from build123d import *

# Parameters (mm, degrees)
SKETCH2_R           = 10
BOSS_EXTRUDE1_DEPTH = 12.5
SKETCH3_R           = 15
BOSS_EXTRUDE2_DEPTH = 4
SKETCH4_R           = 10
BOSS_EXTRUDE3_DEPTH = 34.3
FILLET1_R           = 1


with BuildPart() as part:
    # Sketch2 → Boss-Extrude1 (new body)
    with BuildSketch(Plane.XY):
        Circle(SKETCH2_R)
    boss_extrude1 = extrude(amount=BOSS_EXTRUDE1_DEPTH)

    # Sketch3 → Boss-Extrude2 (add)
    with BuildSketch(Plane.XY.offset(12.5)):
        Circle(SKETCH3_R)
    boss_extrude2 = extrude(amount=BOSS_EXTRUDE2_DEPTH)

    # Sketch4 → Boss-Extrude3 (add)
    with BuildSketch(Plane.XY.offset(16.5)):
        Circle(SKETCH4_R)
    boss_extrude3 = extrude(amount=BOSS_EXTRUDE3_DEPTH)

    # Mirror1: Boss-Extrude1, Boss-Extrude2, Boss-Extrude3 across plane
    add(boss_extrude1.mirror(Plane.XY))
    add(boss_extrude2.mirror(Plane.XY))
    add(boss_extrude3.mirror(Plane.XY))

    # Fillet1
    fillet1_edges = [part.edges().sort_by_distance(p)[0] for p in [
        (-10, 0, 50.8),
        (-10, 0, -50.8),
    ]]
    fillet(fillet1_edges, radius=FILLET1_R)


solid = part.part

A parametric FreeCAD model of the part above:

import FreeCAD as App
import Part
import Sketcher


def edges_at(feature, points):
    """Names of the edges that pass closest to the given points."""
    edges = feature.Shape.Edges
    near = lambda p: min(range(len(edges)), key=lambda i: edges[i].distToShape(Part.Vertex(*p))[0])
    return sorted({f"Edge{near(p) + 1}" for p in points})

doc = App.newDocument("Part")
body = doc.addObject("PartDesign::Body", "Body")

sketch1 = doc.addObject("Sketcher::SketchObject", "Sketch")
body.addObject(sketch1)
sketch1.AttachmentSupport = (doc.XY_Plane, [""])
sketch1.MapMode = "FlatFace"
sketch1.addGeometry(Part.Circle(App.Vector(0, 0, 0), App.Vector(0, 0, 1), 10), False)
sketch1.addConstraint([
    Sketcher.Constraint("Coincident", 0, 3, -1, 1),
    Sketcher.Constraint("Diameter", 0, 20.0),
])
pad1 = doc.addObject("PartDesign::Pad", "Pad")
body.addObject(pad1)
pad1.Profile = sketch1
pad1.Length = 12.5

sketch2 = doc.addObject("Sketcher::SketchObject", "Sketch001")
body.addObject(sketch2)
sketch2.AttachmentSupport = (doc.XY_Plane, [""])
sketch2.MapMode = "FlatFace"
sketch2.AttachmentOffset = App.Placement(App.Vector(0, 0, 12.5), App.Rotation())
sketch2.addGeometry(Part.Circle(App.Vector(0, 0, 0), App.Vector(0, 0, 1), 15), False)
sketch2.addConstraint([
    Sketcher.Constraint("Coincident", 0, 3, -1, 1),
    Sketcher.Constraint("Diameter", 0, 30.0),
])
pad2 = doc.addObject("PartDesign::Pad", "Pad001")
body.addObject(pad2)
pad2.Profile = sketch2
pad2.Length = 4

sketch3 = doc.addObject("Sketcher::SketchObject", "Sketch002")
body.addObject(sketch3)
sketch3.AttachmentSupport = (doc.XY_Plane, [""])
sketch3.MapMode = "FlatFace"
sketch3.AttachmentOffset = App.Placement(App.Vector(0, 0, 16.5), App.Rotation())
sketch3.addGeometry(Part.Circle(App.Vector(0, 0, 0), App.Vector(0, 0, 1), 10), False)
sketch3.addConstraint([
    Sketcher.Constraint("Coincident", 0, 3, -1, 1),
    Sketcher.Constraint("Diameter", 0, 20.0),
])
pad3 = doc.addObject("PartDesign::Pad", "Pad002")
body.addObject(pad3)
pad3.Profile = sketch3
pad3.Length = 34.3
doc.recompute()

mirrored = doc.addObject("PartDesign::Mirrored", "Mirrored")
body.addObject(mirrored)
mirrored.Originals = [pad1, pad2, pad3]
mirrored.MirrorPlane = (doc.XY_Plane, [""])
body.Tip = mirrored
doc.recompute()

fillet = doc.addObject("PartDesign::Fillet", "Fillet")
body.addObject(fillet)
fillet.Base = (mirrored, edges_at(mirrored, [(-10, 0, 50.8), (-10, 0, -50.8)]))
fillet.Radius = 1

doc.recompute()
